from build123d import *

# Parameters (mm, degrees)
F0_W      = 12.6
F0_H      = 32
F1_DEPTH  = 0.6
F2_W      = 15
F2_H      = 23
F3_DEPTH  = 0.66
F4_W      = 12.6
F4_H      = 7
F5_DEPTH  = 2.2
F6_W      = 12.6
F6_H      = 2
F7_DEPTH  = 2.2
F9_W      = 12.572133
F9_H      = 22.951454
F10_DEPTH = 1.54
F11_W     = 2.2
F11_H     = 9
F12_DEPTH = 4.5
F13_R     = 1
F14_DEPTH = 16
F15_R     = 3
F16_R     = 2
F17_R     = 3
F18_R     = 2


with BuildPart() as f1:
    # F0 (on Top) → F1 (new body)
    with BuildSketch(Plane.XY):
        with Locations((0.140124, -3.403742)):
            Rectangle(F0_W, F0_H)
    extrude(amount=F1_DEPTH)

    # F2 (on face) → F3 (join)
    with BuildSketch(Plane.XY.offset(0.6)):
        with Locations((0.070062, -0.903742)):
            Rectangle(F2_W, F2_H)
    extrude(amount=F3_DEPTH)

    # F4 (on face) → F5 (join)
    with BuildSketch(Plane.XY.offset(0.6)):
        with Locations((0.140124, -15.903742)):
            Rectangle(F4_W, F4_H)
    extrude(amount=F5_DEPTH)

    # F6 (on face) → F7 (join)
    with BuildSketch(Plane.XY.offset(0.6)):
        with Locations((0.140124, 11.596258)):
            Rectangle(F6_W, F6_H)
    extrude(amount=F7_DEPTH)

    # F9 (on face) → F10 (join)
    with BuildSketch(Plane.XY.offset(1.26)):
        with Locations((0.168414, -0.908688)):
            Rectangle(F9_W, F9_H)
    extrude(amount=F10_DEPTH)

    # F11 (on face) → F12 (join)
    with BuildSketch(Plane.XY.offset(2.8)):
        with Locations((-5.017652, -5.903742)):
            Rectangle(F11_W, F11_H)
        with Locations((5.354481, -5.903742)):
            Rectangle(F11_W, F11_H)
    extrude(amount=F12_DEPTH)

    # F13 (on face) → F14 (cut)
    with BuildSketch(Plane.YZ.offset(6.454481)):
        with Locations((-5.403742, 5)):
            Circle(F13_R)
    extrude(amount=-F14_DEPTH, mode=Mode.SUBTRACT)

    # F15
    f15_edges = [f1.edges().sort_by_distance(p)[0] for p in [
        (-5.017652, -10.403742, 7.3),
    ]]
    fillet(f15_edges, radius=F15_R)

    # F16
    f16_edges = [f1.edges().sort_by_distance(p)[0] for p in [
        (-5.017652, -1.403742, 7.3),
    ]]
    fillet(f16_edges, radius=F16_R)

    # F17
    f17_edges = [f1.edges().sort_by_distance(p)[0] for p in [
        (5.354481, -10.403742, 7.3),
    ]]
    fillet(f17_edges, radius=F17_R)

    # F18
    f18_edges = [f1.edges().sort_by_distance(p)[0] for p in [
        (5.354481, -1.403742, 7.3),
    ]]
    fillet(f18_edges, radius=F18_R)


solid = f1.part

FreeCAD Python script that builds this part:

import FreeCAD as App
import Part
import Sketcher

V = App.Vector


def edges_at(feature, points):
    """Names of the edges that pass closest to the given points."""
    edges = feature.Shape.Edges
    near = lambda p: min(range(len(edges)), key=lambda i: edges[i].distToShape(Part.Vertex(*p))[0])
    return sorted({f"Edge{near(p) + 1}" for p in points})


def add_polygon(sketch, points):
    """Adds a closed chain of lines whose ends are joined by coincident constraints."""
    first, n = sketch.GeometryCount, len(points)
    for a, b in zip(points, points[1:] + points[:1]):
        sketch.addGeometry(Part.LineSegment(App.Vector(*a, 0), App.Vector(*b, 0)), False)
    for i in range(n):
        sketch.addConstraint(Sketcher.Constraint("Coincident", first + i, 2, first + (i + 1) % n, 1))

doc = App.newDocument("Part")
body = doc.addObject("PartDesign::Body", "Body")

sketch1 = doc.addObject("Sketcher::SketchObject", "Sketch")
body.addObject(sketch1)
sketch1.AttachmentSupport = (doc.XY_Plane, [""])
sketch1.MapMode = "FlatFace"
add_polygon(sketch1, [(-6, 13), (-6, -19), (6, -19), (6, 13)])
sketch1.addConstraint(Sketcher.Constraint("Vertical", 0))
sketch1.addConstraint(Sketcher.Constraint("Horizontal", 1))
sketch1.addConstraint(Sketcher.Constraint("Vertical", 2))
sketch1.addConstraint(Sketcher.Constraint("Horizontal", 3))
sketch1.addConstraint(Sketcher.Constraint("DistanceY", 0, 2, 0, 1, 32.0))
sketch1.addConstraint(Sketcher.Constraint("DistanceX", 1, 1, 1, 2, 12.6))
sketch1.addConstraint(Sketcher.Constraint("DistanceY", -1, 1, 2, 2, 12.596258))
sketch1.addConstraint(Sketcher.Constraint("DistanceX", 0, 2, -1, 1, 6.159876))
pad1 = doc.addObject("PartDesign::Pad", "Pad")
body.addObject(pad1)
pad1.Profile = sketch1
pad1.Length = 0.6

sketch2 = doc.addObject("Sketcher::SketchObject", "Sketch001")
body.addObject(sketch2)
sketch2.AttachmentSupport = (doc.XY_Plane, [""])
sketch2.MapMode = "FlatFace"
sketch2.AttachmentOffset = App.Placement(V(0, 0, 0.6), App.Rotation())
add_polygon(sketch2, [(-7, 11), (-7, -12), (8, -12), (8, 11)])
sketch2.addConstraint(Sketcher.Constraint("Vertical", 0))
sketch2.addConstraint(Sketcher.Constraint("Horizontal", 1))
sketch2.addConstraint(Sketcher.Constraint("Vertical", 2))
sketch2.addConstraint(Sketcher.Constraint("Horizontal", 3))
sketch2.addConstraint(Sketcher.Constraint("DistanceX", 1, 1, 1, 2, 15.0))
sketch2.addConstraint(Sketcher.Constraint("DistanceY", 0, 2, 0, 1, 23.0))
sketch2.addConstraint(Sketcher.Constraint("DistanceY", 0, 2, -1, 1, 12.403742))
sketch2.addConstraint(Sketcher.Constraint("DistanceX", 0, 2, -1, 1, 7.429938))
pad2 = doc.addObject("PartDesign::Pad", "Pad001")
body.addObject(pad2)
pad2.Profile = sketch2
pad2.Length = 0.66

sketch3 = doc.addObject("Sketcher::SketchObject", "Sketch002")
body.addObject(sketch3)
sketch3.AttachmentSupport = (doc.XY_Plane, [""])
sketch3.MapMode = "FlatFace"
sketch3.AttachmentOffset = App.Placement(V(0, 0, 0.6), App.Rotation())
add_polygon(sketch3, [(-6, -12), (-6, -19), (6, -19), (6, -12)])
sketch3.addConstraint(Sketcher.Constraint("Vertical", 0))
sketch3.addConstraint(Sketcher.Constraint("Horizontal", 1))
sketch3.addConstraint(Sketcher.Constraint("Vertical", 2))
sketch3.addConstraint(Sketcher.Constraint("Horizontal", 3))
sketch3.addConstraint(Sketcher.Constraint("DistanceY", 0, 2, 0, 1, 7.0))
sketch3.addConstraint(Sketcher.Constraint("DistanceX", 1, 1, 1, 2, 12.6))
sketch3.addConstraint(Sketcher.Constraint("DistanceY", 2, 2, -1, 1, 12.403742))
sketch3.addConstraint(Sketcher.Constraint("DistanceX", 0, 2, -1, 1, 6.159876))
pad3 = doc.addObject("PartDesign::Pad", "Pad002")
body.addObject(pad3)
pad3.Profile = sketch3
pad3.Length = 2.2

sketch4 = doc.addObject("Sketcher::SketchObject", "Sketch003")
body.addObject(sketch4)
sketch4.AttachmentSupport = (doc.XY_Plane, [""])
sketch4.MapMode = "FlatFace"
sketch4.AttachmentOffset = App.Placement(V(0, 0, 0.6), App.Rotation())
add_polygon(sketch4, [(-6.2, 12.6), (-6.2, 10.6), (6.4, 10.6), (6.4, 12.6)])
sketch4.addConstraint(Sketcher.Constraint("Vertical", 0))
sketch4.addConstraint(Sketcher.Constraint("Horizontal", 1))
sketch4.addConstraint(Sketcher.Constraint("Vertical", 2))
sketch4.addConstraint(Sketcher.Constraint("Horizontal", 3))
sketch4.addConstraint(Sketcher.Constraint("DistanceY", 0, 2, 0, 1, 2.0))
sketch4.addConstraint(Sketcher.Constraint("DistanceX", 1, 1, 1, 2, 12.6))
sketch4.addConstraint(Sketcher.Constraint("DistanceY", -1, 1, 0, 2, 10.596258))
sketch4.addConstraint(Sketcher.Constraint("DistanceX", 0, 2, -1, 1, 6.159876))
pad4 = doc.addObject("PartDesign::Pad", "Pad003")
body.addObject(pad4)
pad4.Profile = sketch4
pad4.Length = 2.2

sketch5 = doc.addObject("Sketcher::SketchObject", "Sketch004")
body.addObject(sketch5)
sketch5.AttachmentSupport = (doc.XY_Plane, [""])
sketch5.MapMode = "FlatFace"
sketch5.AttachmentOffset = App.Placement(V(0, 0, 1.26), App.Rotation())
add_polygon(sketch5, [(-6, 11), (-6, -12), (6, -12), (6, 11)])
sketch5.addConstraint(Sketcher.Constraint("Vertical", 0))
sketch5.addConstraint(Sketcher.Constraint("Horizontal", 1))
sketch5.addConstraint(Sketcher.Constraint("Vertical", 2))
sketch5.addConstraint(Sketcher.Constraint("Horizontal", 3))
sketch5.addConstraint(Sketcher.Constraint("DistanceX", 1, 1, 1, 2, 12.572133))
sketch5.addConstraint(Sketcher.Constraint("DistanceY", 0, 2, 0, 1, 22.951454))
sketch5.addConstraint(Sketcher.Constraint("DistanceX", -1, 1, 1, 2, 6.45448))
sketch5.addConstraint(Sketcher.Constraint("DistanceY", -1, 1, 2, 2, 10.567039))
pad5 = doc.addObject("PartDesign::Pad", "Pad004")
body.addObject(pad5)
pad5.Profile = sketch5
pad5.Length = 1.54

sketch6 = doc.addObject("Sketcher::SketchObject", "Sketch005")
body.addObject(sketch6)
sketch6.AttachmentSupport = (doc.XY_Plane, [""])
sketch6.MapMode = "FlatFace"
sketch6.AttachmentOffset = App.Placement(V(0, 0, 2.8), App.Rotation())
add_polygon(sketch6, [(-6.1, -1.4), (-6.1, -10.4), (-3.9, -10.4), (-3.9, -1.4)])
add_polygon(sketch6, [(4.3, -1.4), (4.3, -10.4), (6.5, -10.4), (6.5, -1.4)])
sketch6.addConstraint(Sketcher.Constraint("Vertical", 0))
sketch6.addConstraint(Sketcher.Constraint("Horizontal", 1))
sketch6.addConstraint(Sketcher.Constraint("Vertical", 2))
sketch6.addConstraint(Sketcher.Constraint("Horizontal", 3))
sketch6.addConstraint(Sketcher.Constraint("Vertical", 4))
sketch6.addConstraint(Sketcher.Constraint("Horizontal", 5))
sketch6.addConstraint(Sketcher.Constraint("Vertical", 6))
sketch6.addConstraint(Sketcher.Constraint("Horizontal", 7))
sketch6.addConstraint(Sketcher.Constraint("Horizontal", 1, 2, 4, 2))
sketch6.addConstraint(Sketcher.Constraint("Horizontal", 3, 2, 6, 2))
sketch6.addConstraint(Sketcher.Constraint("Equal", 3, 5))
sketch6.addConstraint(Sketcher.Constraint("DistanceY", 0, 2, 0, 1, 9.0))
sketch6.addConstraint(Sketcher.Constraint("DistanceX", 1, 1, 1, 2, 2.2))
sketch6.addConstraint(Sketcher.Constraint("DistanceX", 0, 2, -1, 1, 6.117652))
sketch6.addConstraint(Sketcher.Constraint("DistanceY", 0, 2, -1, 1, 10.403742))
sketch6.addConstraint(Sketcher.Constraint("DistanceX", -1, 1, 4, 2, 4.254481))
pad6 = doc.addObject("PartDesign::Pad", "Pad005")
body.addObject(pad6)
pad6.Profile = sketch6
pad6.Length = 4.5

sketch7 = doc.addObject("Sketcher::SketchObject", "Sketch006")
body.addObject(sketch7)
sketch7.AttachmentSupport = (doc.YZ_Plane, [""])
sketch7.MapMode = "FlatFace"
sketch7.AttachmentOffset = App.Placement(V(0, 0, 6.454481), App.Rotation())
sketch7.addGeometry(Part.Circle(V(-5.4, 5, 0), V(0, 0, 1), 1), False)
sketch7.addConstraint(Sketcher.Constraint("Diameter", 0, 2.0))
sketch7.addConstraint(Sketcher.Constraint("DistanceY", -1, 1, 0, 3, 5.0))
sketch7.addConstraint(Sketcher.Constraint("DistanceX", 0, 3, -1, 1, 5.403742))
pocket1 = doc.addObject("PartDesign::Pocket", "Pocket")
body.addObject(pocket1)
pocket1.Profile = sketch7
pocket1.Length = 16
doc.recompute()

fillet = doc.addObject("PartDesign::Fillet", "Fillet")
body.addObject(fillet)
fillet.Base = (pocket1, edges_at(pocket1, [(-5.018, -10.404, 7.3)]))
fillet.Radius = 3
doc.recompute()

fillet2 = doc.addObject("PartDesign::Fillet", "Fillet001")
body.addObject(fillet2)
fillet2.Base = (fillet, edges_at(fillet, [(-5.018, -1.404, 7.3)]))
fillet2.Radius = 2
doc.recompute()

fillet3 = doc.addObject("PartDesign::Fillet", "Fillet002")
body.addObject(fillet3)
fillet3.Base = (fillet2, edges_at(fillet2, [(5.354, -10.404, 7.3)]))
fillet3.Radius = 3
doc.recompute()

fillet4 = doc.addObject("PartDesign::Fillet", "Fillet003")
body.addObject(fillet4)
fillet4.Base = (fillet3, edges_at(fillet3, [(5.354, -1.404, 7.3)]))
fillet4.Radius = 2

doc.recompute()
